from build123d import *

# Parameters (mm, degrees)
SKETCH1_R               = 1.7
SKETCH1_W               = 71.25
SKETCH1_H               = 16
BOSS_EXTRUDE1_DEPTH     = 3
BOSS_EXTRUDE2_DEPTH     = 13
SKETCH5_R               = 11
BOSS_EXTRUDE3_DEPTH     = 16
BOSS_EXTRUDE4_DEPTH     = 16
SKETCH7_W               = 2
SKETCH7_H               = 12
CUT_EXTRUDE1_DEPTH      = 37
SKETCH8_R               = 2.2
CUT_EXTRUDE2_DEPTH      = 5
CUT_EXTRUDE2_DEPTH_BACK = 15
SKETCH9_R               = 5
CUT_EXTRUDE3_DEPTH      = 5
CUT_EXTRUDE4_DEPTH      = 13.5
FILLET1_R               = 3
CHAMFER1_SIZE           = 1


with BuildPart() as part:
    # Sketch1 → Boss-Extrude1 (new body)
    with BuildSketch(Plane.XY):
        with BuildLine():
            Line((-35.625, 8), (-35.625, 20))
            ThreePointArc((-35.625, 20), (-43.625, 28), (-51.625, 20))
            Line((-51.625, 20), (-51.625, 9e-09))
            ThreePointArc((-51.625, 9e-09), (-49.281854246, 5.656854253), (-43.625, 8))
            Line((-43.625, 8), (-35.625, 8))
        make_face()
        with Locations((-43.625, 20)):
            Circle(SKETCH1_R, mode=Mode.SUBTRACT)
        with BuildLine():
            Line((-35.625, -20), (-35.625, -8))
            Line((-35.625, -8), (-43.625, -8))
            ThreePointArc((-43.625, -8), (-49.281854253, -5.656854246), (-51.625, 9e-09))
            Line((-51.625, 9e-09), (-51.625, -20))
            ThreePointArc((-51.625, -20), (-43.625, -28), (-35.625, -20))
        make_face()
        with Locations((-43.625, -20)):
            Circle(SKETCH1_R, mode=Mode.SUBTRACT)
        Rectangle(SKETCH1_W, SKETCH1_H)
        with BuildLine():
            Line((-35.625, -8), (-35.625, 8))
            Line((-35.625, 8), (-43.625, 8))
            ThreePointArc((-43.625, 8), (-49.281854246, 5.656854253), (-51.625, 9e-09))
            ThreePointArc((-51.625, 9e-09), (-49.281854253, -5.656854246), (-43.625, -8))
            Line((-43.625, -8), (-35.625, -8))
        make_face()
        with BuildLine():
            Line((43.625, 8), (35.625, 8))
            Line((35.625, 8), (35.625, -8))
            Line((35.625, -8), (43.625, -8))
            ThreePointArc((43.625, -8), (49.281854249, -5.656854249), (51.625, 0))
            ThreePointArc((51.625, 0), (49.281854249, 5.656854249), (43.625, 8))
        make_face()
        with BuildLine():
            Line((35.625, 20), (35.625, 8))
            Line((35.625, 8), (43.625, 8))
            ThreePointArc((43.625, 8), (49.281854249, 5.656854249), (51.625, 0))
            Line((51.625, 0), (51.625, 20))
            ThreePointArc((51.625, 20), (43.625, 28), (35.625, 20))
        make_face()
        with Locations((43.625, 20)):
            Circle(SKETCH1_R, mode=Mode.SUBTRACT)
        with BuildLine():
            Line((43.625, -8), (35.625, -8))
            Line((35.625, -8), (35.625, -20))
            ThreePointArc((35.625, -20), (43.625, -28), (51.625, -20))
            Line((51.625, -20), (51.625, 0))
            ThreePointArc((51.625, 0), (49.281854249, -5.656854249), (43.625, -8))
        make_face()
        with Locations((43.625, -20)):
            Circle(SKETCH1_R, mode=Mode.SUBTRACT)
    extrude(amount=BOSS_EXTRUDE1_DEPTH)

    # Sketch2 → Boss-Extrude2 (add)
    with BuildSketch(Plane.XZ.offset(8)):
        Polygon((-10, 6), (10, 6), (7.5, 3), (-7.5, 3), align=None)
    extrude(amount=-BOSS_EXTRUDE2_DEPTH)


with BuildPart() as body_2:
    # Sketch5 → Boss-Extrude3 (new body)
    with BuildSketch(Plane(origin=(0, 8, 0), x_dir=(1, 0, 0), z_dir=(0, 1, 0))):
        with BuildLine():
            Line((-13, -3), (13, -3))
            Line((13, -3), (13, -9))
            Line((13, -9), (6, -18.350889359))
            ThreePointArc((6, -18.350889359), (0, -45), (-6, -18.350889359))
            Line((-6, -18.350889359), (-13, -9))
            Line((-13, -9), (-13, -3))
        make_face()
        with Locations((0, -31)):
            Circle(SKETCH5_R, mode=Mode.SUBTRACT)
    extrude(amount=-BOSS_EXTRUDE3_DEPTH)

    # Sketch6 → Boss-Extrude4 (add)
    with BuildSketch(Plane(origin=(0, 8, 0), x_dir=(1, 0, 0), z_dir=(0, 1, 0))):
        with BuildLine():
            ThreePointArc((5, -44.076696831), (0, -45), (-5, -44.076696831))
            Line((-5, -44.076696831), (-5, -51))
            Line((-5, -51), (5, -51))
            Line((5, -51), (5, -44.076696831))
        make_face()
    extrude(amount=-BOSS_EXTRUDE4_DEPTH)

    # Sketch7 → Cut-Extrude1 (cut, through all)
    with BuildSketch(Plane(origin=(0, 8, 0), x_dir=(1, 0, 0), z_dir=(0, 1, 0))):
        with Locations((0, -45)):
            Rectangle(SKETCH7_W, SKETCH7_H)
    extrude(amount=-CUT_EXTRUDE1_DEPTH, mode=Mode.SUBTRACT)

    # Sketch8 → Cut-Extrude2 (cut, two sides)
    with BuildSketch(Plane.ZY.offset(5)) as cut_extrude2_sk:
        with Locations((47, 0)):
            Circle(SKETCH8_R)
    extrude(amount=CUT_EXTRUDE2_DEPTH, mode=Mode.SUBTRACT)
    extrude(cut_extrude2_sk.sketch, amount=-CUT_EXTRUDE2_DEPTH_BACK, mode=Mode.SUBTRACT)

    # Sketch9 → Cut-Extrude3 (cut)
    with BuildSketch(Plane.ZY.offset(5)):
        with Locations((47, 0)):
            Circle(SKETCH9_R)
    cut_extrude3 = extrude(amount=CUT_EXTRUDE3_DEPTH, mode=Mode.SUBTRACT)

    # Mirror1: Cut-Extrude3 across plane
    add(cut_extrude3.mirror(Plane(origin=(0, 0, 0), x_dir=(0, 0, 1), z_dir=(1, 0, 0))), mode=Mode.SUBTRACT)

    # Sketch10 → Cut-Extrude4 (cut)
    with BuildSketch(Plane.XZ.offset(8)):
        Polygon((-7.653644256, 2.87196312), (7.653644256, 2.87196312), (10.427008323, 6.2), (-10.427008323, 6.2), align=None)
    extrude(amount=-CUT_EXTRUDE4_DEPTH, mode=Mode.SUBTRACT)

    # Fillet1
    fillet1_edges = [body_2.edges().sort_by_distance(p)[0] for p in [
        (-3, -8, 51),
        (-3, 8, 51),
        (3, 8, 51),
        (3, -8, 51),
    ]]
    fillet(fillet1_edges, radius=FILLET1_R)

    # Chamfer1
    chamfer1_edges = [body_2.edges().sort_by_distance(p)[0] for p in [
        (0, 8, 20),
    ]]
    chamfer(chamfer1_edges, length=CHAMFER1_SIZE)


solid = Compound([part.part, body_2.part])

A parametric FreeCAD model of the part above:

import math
import FreeCAD as App
import Part
import Sketcher

V = App.Vector


def edges_at(feature, points):
    """Names of the edges that pass closest to the given points."""
    edges = feature.Shape.Edges
    near = lambda p: min(range(len(edges)), key=lambda i: edges[i].distToShape(Part.Vertex(*p))[0])
    return sorted({f"Edge{near(p) + 1}" for p in points})

doc = App.newDocument("Part")
body = doc.addObject("PartDesign::Body", "Body")

sketch1 = body.newObject("Sketcher::SketchObject", "Sketch")
sketch1.AttachmentSupport = (doc.getObject("XY_Plane"), [""])
sketch1.MapMode = "FlatFace"
sketch1.addGeometry(Part.LineSegment(V(-35.6, 8, 0), V(-35.6, 20, 0)), False)
sketch1.addGeometry(Part.ArcOfCircle(Part.Circle(V(-43.6, 20, 0), V(0, 0, 1), 8), math.radians(0), math.radians(180)), False)
sketch1.addGeometry(Part.LineSegment(V(-51.6, 20, 0), V(-51.6, -20, 0)), False)
sketch1.addGeometry(Part.ArcOfCircle(Part.Circle(V(-43.6, -20, 0), V(0, 0, 1), 8), math.radians(180), math.radians(360)), False)
sketch1.addGeometry(Part.LineSegment(V(-35.6, -20, 0), V(-35.6, -8, 0)), False)
sketch1.addGeometry(Part.LineSegment(V(-35.6, -8, 0), V(35.6, -8, 0)), False)
sketch1.addGeometry(Part.LineSegment(V(35.6, -8, 0), V(35.6, -20, 0)), False)
sketch1.addGeometry(Part.ArcOfCircle(Part.Circle(V(43.6, -20, 0), V(0, 0, 1), 8), math.radians(180), math.radians(360)), False)
sketch1.addGeometry(Part.LineSegment(V(51.6, -20, 0), V(51.6, 20, 0)), False)
sketch1.addGeometry(Part.ArcOfCircle(Part.Circle(V(43.6, 20, 0), V(0, 0, 1), 8), math.radians(0), math.radians(180)), False)
sketch1.addGeometry(Part.LineSegment(V(35.6, 20, 0), V(35.6, 8, 0)), False)
sketch1.addGeometry(Part.LineSegment(V(35.6, 8, 0), V(-35.6, 8, 0)), False)
sketch1.addGeometry(Part.Circle(V(-43.6, -20, 0), V(0, 0, 1), 1.7), False)
sketch1.addGeometry(Part.Circle(V(43.6, -20, 0), V(0, 0, 1), 1.7), False)
sketch1.addGeometry(Part.Circle(V(-43.6, 20, 0), V(0, 0, 1), 1.7), False)
sketch1.addGeometry(Part.Circle(V(43.6, 20, 0), V(0, 0, 1), 1.7), False)
sketch1.addConstraint(Sketcher.Constraint("Tangent", 0, 2, 1, 1))
sketch1.addConstraint(Sketcher.Constraint("Tangent", 1, 2, 2, 1))
sketch1.addConstraint(Sketcher.Constraint("Tangent", 2, 2, 3, 1))
sketch1.addConstraint(Sketcher.Constraint("Tangent", 3, 2, 4, 1))
sketch1.addConstraint(Sketcher.Constraint("Coincident", 4, 2, 5, 1))
sketch1.addConstraint(Sketcher.Constraint("Coincident", 5, 2, 6, 1))
sketch1.addConstraint(Sketcher.Constraint("Tangent", 6, 2, 7, 1))
sketch1.addConstraint(Sketcher.Constraint("Tangent", 7, 2, 8, 1))
sketch1.addConstraint(Sketcher.Constraint("Tangent", 8, 2, 9, 1))
sketch1.addConstraint(Sketcher.Constraint("Tangent", 9, 2, 10, 1))
sketch1.addConstraint(Sketcher.Constraint("Coincident", 10, 2, 11, 1))
sketch1.addConstraint(Sketcher.Constraint("Coincident", 11, 2, 0, 1))
sketch1.addConstraint(Sketcher.Constraint("Vertical", 0))
sketch1.addConstraint(Sketcher.Constraint("Vertical", 2))
sketch1.addConstraint(Sketcher.Constraint("Vertical", 4))
sketch1.addConstraint(Sketcher.Constraint("Horizontal", 5))
sketch1.addConstraint(Sketcher.Constraint("Vertical", 6))
sketch1.addConstraint(Sketcher.Constraint("Vertical", 8))
sketch1.addConstraint(Sketcher.Constraint("Vertical", 10))
sketch1.addConstraint(Sketcher.Constraint("Horizontal", 11))
sketch1.addConstraint(Sketcher.Constraint("Coincident", 12, 3, 3, 3))
sketch1.addConstraint(Sketcher.Constraint("Coincident", 13, 3, 7, 3))
sketch1.addConstraint(Sketcher.Constraint("Coincident", 14, 3, 1, 3))
sketch1.addConstraint(Sketcher.Constraint("Coincident", 15, 3, 9, 3))
sketch1.addConstraint(Sketcher.Constraint("Equal", 1, 3))
sketch1.addConstraint(Sketcher.Constraint("Equal", 3, 7))
sketch1.addConstraint(Sketcher.Constraint("Equal", 7, 9))
sketch1.addConstraint(Sketcher.Constraint("Equal", 12, 13))
sketch1.addConstraint(Sketcher.Constraint("Equal", 13, 14))
sketch1.addConstraint(Sketcher.Constraint("Equal", 14, 15))
sketch1.addConstraint(Sketcher.Constraint("Symmetric", 1, 3, 7, 3, -1, 1))
sketch1.addConstraint(Sketcher.Constraint("Horizontal", 3, 3, 7, 3))
sketch1.addConstraint(Sketcher.Constraint("Horizontal", 1, 3, 9, 3))
sketch1.addConstraint(Sketcher.Constraint("Equal", 0, 4))
sketch1.addConstraint(Sketcher.Constraint("Radius", 1, 8.0))
sketch1.addConstraint(Sketcher.Constraint("Diameter", 12, 3.4))
sketch1.addConstraint(Sketcher.Constraint("DistanceY", 0, 1, 0, 2, 12.0))
sketch1.addConstraint(Sketcher.Constraint("DistanceY", 2, 2, 2, 1, 40.0))
sketch1.addConstraint(Sketcher.Constraint("DistanceX", 5, 1, 5, 2, 71.25))
pad1 = body.newObject("PartDesign::Pad", "Pad")
pad1.Profile = sketch1
pad1.Length = 3

sketch2 = body.newObject("Sketcher::SketchObject", "Sketch001")
sketch2.AttachmentSupport = (doc.getObject("XZ_Plane"), [""])
sketch2.MapMode = "FlatFace"
sketch2.AttachmentOffset = App.Placement(V(0, 0, 8), App.Rotation())
sketch2.addGeometry(Part.LineSegment(V(10, 6, 0), V(-10, 6, 0)), False)
sketch2.addGeometry(Part.LineSegment(V(-10, 6, 0), V(-7.5, 3, 0)), False)
sketch2.addGeometry(Part.LineSegment(V(-7.5, 3, 0), V(7.5, 3, 0)), False)
sketch2.addGeometry(Part.LineSegment(V(7.5, 3, 0), V(10, 6, 0)), False)
sketch2.addConstraint(Sketcher.Constraint("Coincident", 0, 2, 1, 1))
sketch2.addConstraint(Sketcher.Constraint("Coincident", 1, 2, 2, 1))
sketch2.addConstraint(Sketcher.Constraint("Coincident", 2, 2, 3, 1))
sketch2.addConstraint(Sketcher.Constraint("Coincident", 3, 2, 0, 1))
sketch2.addConstraint(Sketcher.Constraint("Horizontal", 0))
sketch2.addConstraint(Sketcher.Constraint("Horizontal", 2))
sketch2.addConstraint(Sketcher.Constraint("Equal", 1, 3))
sketch2.addConstraint(Sketcher.Constraint("DistanceX", 0, 2, 0, 1, 20.0))
sketch2.addConstraint(Sketcher.Constraint("DistanceX", 2, 1, 2, 2, 15.0))
sketch2.addConstraint(Sketcher.Constraint("DistanceX", 0, 2, -1, 1, 10.0))
sketch2.addConstraint(Sketcher.Constraint("DistanceY", -1, 1, 0, 2, 6.0))
sketch2.addConstraint(Sketcher.Constraint("DistanceY", -1, 1, 1, 2, 3.0))
pad2 = body.newObject("PartDesign::Pad", "Pad001")
pad2.Profile = sketch2
pad2.Length = 13
pad2.Reversed = True
body2 = doc.addObject("PartDesign::Body", "Body001")

sketch3 = body2.newObject("Sketcher::SketchObject", "Sketch002")
sketch3.AttachmentSupport = (doc.getObject("XZ_Plane001"), [""])
sketch3.MapMode = "FlatFace"
sketch3.AttachmentOffset = App.Placement(V(0, 0, -8), App.Rotation())
sketch3.addGeometry(Part.LineSegment(V(13, 3, 0), V(-13, 3, 0)), False)
sketch3.addGeometry(Part.LineSegment(V(-13, 3, 0), V(-13, 9, 0)), False)
sketch3.addGeometry(Part.LineSegment(V(-13, 9, 0), V(-6, 18, 0)), False)
sketch3.addGeometry(Part.ArcOfCircle(Part.Circle(V(0, 31, 0), V(0, 0, 1), 14), math.radians(-65), math.radians(245)), False)
sketch3.addGeometry(Part.LineSegment(V(6, 18, 0), V(13, 9, 0)), False)
sketch3.addGeometry(Part.LineSegment(V(13, 9, 0), V(13, 3, 0)), False)
sketch3.addGeometry(Part.Circle(V(0, 31, 0), V(0, 0, 1), 11), False)
sketch3.addConstraint(Sketcher.Constraint("Coincident", 0, 2, 1, 1))
sketch3.addConstraint(Sketcher.Constraint("Coincident", 1, 2, 2, 1))
sketch3.addConstraint(Sketcher.Constraint("Coincident", 2, 2, 3, 2))
sketch3.addConstraint(Sketcher.Constraint("Coincident", 3, 1, 4, 1))
sketch3.addConstraint(Sketcher.Constraint("Coincident", 4, 2, 5, 1))
sketch3.addConstraint(Sketcher.Constraint("Coincident", 5, 2, 0, 1))
sketch3.addConstraint(Sketcher.Constraint("Horizontal", 0))
sketch3.addConstraint(Sketcher.Constraint("Vertical", 1))
sketch3.addConstraint(Sketcher.Constraint("Vertical", 5))
sketch3.addConstraint(Sketcher.Constraint("Coincident", 6, 3, 3, 3))
sketch3.addConstraint(Sketcher.Constraint("Symmetric", 2, 2, 3, 1, -2))
sketch3.addConstraint(Sketcher.Constraint("Symmetric", 1, 2, 4, 2, -2))
sketch3.addConstraint(Sketcher.Constraint("Diameter", 6, 22.0))
sketch3.addConstraint(Sketcher.Constraint("Radius", 3, 14.0))
sketch3.addConstraint(Sketcher.Constraint("DistanceX", 0, 2, 0, 1, 26.0))
sketch3.addConstraint(Sketcher.Constraint("DistanceY", 1, 1, 1, 2, 6.0))
sketch3.addConstraint(Sketcher.Constraint("DistanceY", -1, 1, 3, 3, 31.0))
sketch3.addConstraint(Sketcher.Constraint("DistanceY", -1, 1, 0, 2, 3.0))
sketch3.addConstraint(Sketcher.Constraint("DistanceX", 2, 2, -1, 1, 6.0))
pad3 = body2.newObject("PartDesign::Pad", "Pad002")
pad3.Profile = sketch3
pad3.Length = 16

sketch4 = body2.newObject("Sketcher::SketchObject", "Sketch003")
sketch4.AttachmentSupport = (doc.getObject("XZ_Plane001"), [""])
sketch4.MapMode = "FlatFace"
sketch4.AttachmentOffset = App.Placement(V(0, 0, -8), App.Rotation())
sketch4.addGeometry(Part.ArcOfCircle(Part.Circle(V(0, 31, 0), V(0, 0, 1), 14), math.radians(69), math.radians(111)), False)
sketch4.addGeometry(Part.LineSegment(V(-5, 44, 0), V(-5, 51, 0)), False)
sketch4.addGeometry(Part.LineSegment(V(-5, 51, 0), V(5, 51, 0)), False)
sketch4.addGeometry(Part.LineSegment(V(5, 51, 0), V(5, 44, 0)), False)
sketch4.addConstraint(Sketcher.Constraint("Coincident", 0, 2, 1, 1))
sketch4.addConstraint(Sketcher.Constraint("Coincident", 1, 2, 2, 1))
sketch4.addConstraint(Sketcher.Constraint("Coincident", 2, 2, 3, 1))
sketch4.addConstraint(Sketcher.Constraint("Coincident", 3, 2, 0, 1))
sketch4.addConstraint(Sketcher.Constraint("Vertical", 1))
sketch4.addConstraint(Sketcher.Constraint("Horizontal", 2))
sketch4.addConstraint(Sketcher.Constraint("Vertical", 3))
sketch4.addConstraint(Sketcher.Constraint("Symmetric", 0, 2, 3, 2, -2))
sketch4.addConstraint(Sketcher.Constraint("Radius", 0, 14.0))
sketch4.addConstraint(Sketcher.Constraint("DistanceX", 2, 1, 2, 2, 10.0))
sketch4.addConstraint(Sketcher.Constraint("DistanceY", -1, 1, 0, 3, 31.0))
sketch4.addConstraint(Sketcher.Constraint("DistanceY", -1, 1, 1, 2, 51.0))
pad4 = body2.newObject("PartDesign::Pad", "Pad003")
pad4.Profile = sketch4
pad4.Length = 16

sketch5 = body2.newObject("Sketcher::SketchObject", "Sketch004")
sketch5.AttachmentSupport = (doc.getObject("XZ_Plane001"), [""])
sketch5.MapMode = "FlatFace"
sketch5.AttachmentOffset = App.Placement(V(0, 0, -8), App.Rotation())
sketch5.addGeometry(Part.LineSegment(V(-1, 39, 0), V(-1, 51, 0)), False)
sketch5.addGeometry(Part.LineSegment(V(-1, 51, 0), V(1, 51, 0)), False)
sketch5.addGeometry(Part.LineSegment(V(1, 51, 0), V(1, 39, 0)), False)
sketch5.addGeometry(Part.LineSegment(V(1, 39, 0), V(-1, 39, 0)), False)
sketch5.addConstraint(Sketcher.Constraint("Coincident", 0, 2, 1, 1))
sketch5.addConstraint(Sketcher.Constraint("Coincident", 1, 2, 2, 1))
sketch5.addConstraint(Sketcher.Constraint("Coincident", 2, 2, 3, 1))
sketch5.addConstraint(Sketcher.Constraint("Coincident", 3, 2, 0, 1))
sketch5.addConstraint(Sketcher.Constraint("Vertical", 0))
sketch5.addConstraint(Sketcher.Constraint("Horizontal", 1))
sketch5.addConstraint(Sketcher.Constraint("Vertical", 2))
sketch5.addConstraint(Sketcher.Constraint("Horizontal", 3))
sketch5.addConstraint(Sketcher.Constraint("DistanceX", 1, 1, 1, 2, 2.0))
sketch5.addConstraint(Sketcher.Constraint("DistanceY", 0, 1, 0, 2, 12.0))
sketch5.addConstraint(Sketcher.Constraint("DistanceX", 0, 2, -1, 1, 1.0))
sketch5.addConstraint(Sketcher.Constraint("DistanceY", -1, 1, 0, 2, 51.0))
pocket1 = body2.newObject("PartDesign::Pocket", "Pocket")
pocket1.Profile = sketch5
pocket1.Type = "ThroughAll"
pocket1.Reversed = True

sketch6 = body2.newObject("Sketcher::SketchObject", "Sketch005")
sketch6.AttachmentSupport = (doc.getObject("YZ_Plane001"), [""])
sketch6.MapMode = "FlatFace"
sketch6.AttachmentOffset = App.Placement(V(0, 0, -5), App.Rotation())
sketch6.addGeometry(Part.Circle(V(0, 47, 0), V(0, 0, 1), 2.2), False)
sketch6.addConstraint(Sketcher.Constraint("PointOnObject", 0, 3, -2))
sketch6.addConstraint(Sketcher.Constraint("Diameter", 0, 4.4))
sketch6.addConstraint(Sketcher.Constraint("DistanceY", -1, 1, 0, 3, 47.0))
pocket2 = body2.newObject("PartDesign::Pocket", "Pocket001")
pocket2.Profile = sketch6
pocket2.Type = "ThroughAll"
pocket2.Midplane = True

sketch7 = body2.newObject("Sketcher::SketchObject", "Sketch006")
sketch7.AttachmentSupport = (doc.getObject("YZ_Plane001"), [""])
sketch7.MapMode = "FlatFace"
sketch7.AttachmentOffset = App.Placement(V(0, 0, -5), App.Rotation())
sketch7.addGeometry(Part.Circle(V(0, 47, 0), V(0, 0, 1), 5), False)
sketch7.addConstraint(Sketcher.Constraint("PointOnObject", 0, 3, -2))
sketch7.addConstraint(Sketcher.Constraint("Diameter", 0, 10.0))
sketch7.addConstraint(Sketcher.Constraint("DistanceY", -1, 1, 0, 3, 47.0))
pocket3 = body2.newObject("PartDesign::Pocket", "Pocket002")
pocket3.Profile = sketch7
pocket3.Length = 5
doc.recompute()

mirrored = body2.newObject("PartDesign::Mirrored", "Mirrored")
mirrored.Originals = [pocket3]
mirrored.MirrorPlane = (doc.getObject("YZ_Plane001"), [""])
body2.Tip = mirrored

sketch8 = body2.newObject("Sketcher::SketchObject", "Sketch007")
sketch8.AttachmentSupport = (doc.getObject("XZ_Plane001"), [""])
sketch8.MapMode = "FlatFace"
sketch8.AttachmentOffset = App.Placement(V(0, 0, 8), App.Rotation())
sketch8.addGeometry(Part.LineSegment(V(-7.7, 2.9, 0), V(7.7, 2.9, 0)), False)
sketch8.addGeometry(Part.LineSegment(V(7.7, 2.9, 0), V(10.4, 6.2, 0)), False)
sketch8.addGeometry(Part.LineSegment(V(10.4, 6.2, 0), V(-10.4, 6.2, 0)), False)
sketch8.addGeometry(Part.LineSegment(V(-10.4, 6.2, 0), V(-7.7, 2.9, 0)), False)
sketch8.addConstraint(Sketcher.Constraint("Coincident", 0, 2, 1, 1))
sketch8.addConstraint(Sketcher.Constraint("Coincident", 1, 2, 2, 1))
sketch8.addConstraint(Sketcher.Constraint("Coincident", 2, 2, 3, 1))
sketch8.addConstraint(Sketcher.Constraint("Coincident", 3, 2, 0, 1))
sketch8.addConstraint(Sketcher.Constraint("Horizontal", 0))
sketch8.addConstraint(Sketcher.Constraint("Horizontal", 2))
sketch8.addConstraint(Sketcher.Constraint("Equal", 1, 3))
sketch8.addConstraint(Sketcher.Constraint("DistanceY", -1, 1, 1, 2, 6.2))
sketch8.addConstraint(Sketcher.Constraint("DistanceX", 0, 1, 0, 2, 15.307289))
sketch8.addConstraint(Sketcher.Constraint("DistanceX", 2, 2, 2, 1, 20.854017))
sketch8.addConstraint(Sketcher.Constraint("DistanceX", -1, 1, 1, 2, 10.427008))
sketch8.addConstraint(Sketcher.Constraint("Distance", 1, 4.332133))
pocket4 = body2.newObject("PartDesign::Pocket", "Pocket003")
pocket4.Profile = sketch8
pocket4.Length = 13.5
doc.recompute()

fillet = body2.newObject("PartDesign::Fillet", "Fillet")
fillet.Base = (pocket4, edges_at(pocket4, [
    (-3, -8, 51),
    (-3, 8, 51),
    (3, 8, 51),
    (3, -8, 51),
]))
fillet.Radius = 3
doc.recompute()

chamfer = body2.newObject("PartDesign::Chamfer", "Chamfer")
chamfer.Base = (fillet, edges_at(fillet, [(0, 8, 20)]))
chamfer.Size = 1

doc.recompute()
